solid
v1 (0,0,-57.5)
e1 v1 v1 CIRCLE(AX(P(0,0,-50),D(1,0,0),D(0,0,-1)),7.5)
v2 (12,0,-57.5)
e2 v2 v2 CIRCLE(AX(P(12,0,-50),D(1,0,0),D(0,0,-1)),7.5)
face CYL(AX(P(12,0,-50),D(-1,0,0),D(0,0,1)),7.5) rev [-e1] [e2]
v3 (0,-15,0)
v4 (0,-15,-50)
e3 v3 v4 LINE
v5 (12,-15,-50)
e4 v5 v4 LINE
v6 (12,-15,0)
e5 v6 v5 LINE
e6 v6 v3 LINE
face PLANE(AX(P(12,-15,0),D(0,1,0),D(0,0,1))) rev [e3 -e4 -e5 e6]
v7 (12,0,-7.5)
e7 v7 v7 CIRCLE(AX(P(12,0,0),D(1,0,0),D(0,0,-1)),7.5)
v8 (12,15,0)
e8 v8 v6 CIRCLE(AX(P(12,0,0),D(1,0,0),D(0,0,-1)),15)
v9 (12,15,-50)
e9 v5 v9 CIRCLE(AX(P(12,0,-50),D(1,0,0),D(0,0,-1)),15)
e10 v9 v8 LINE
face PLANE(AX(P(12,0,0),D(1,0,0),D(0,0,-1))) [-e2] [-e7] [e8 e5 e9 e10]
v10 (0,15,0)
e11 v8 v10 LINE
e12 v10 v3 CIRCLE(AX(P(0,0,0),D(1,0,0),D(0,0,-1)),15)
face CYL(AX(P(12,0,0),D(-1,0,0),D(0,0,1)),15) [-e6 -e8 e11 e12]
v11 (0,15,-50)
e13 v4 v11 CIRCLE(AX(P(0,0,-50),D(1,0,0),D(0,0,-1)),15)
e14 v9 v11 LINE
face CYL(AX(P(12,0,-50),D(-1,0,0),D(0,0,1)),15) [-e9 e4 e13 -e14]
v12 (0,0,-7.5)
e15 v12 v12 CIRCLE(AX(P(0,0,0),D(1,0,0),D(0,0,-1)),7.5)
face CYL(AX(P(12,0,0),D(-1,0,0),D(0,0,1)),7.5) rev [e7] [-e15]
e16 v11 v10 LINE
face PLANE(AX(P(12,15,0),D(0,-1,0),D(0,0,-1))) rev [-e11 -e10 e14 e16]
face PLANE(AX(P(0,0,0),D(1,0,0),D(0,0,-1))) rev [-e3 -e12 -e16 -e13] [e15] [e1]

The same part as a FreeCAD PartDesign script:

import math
import FreeCAD as App
import Part
import Sketcher
Q = App.Units.Quantity

doc = App.newDocument("Part")
body = doc.addObject("PartDesign::Body", "Body")

sketch1 = body.newObject("Sketcher::SketchObject", "Sketch")
sketch1.AttachmentSupport = (doc.getObject("YZ_Plane"), [""])
sketch1.MapMode = "FlatFace"
sketch1.addGeometry([
    Part.LineSegment(App.Vector(15, -50, 0), App.Vector(15, 0, 0)),
    Part.ArcOfCircle(Part.Circle(App.Vector(0, 0, 0), App.Vector(0, 0, 1), 15), math.radians(0), math.radians(180)),
    Part.LineSegment(App.Vector(-15, 0, 0), App.Vector(-15, -50, 0)),
    Part.ArcOfCircle(Part.Circle(App.Vector(0, -50, 0), App.Vector(0, 0, 1), 15), math.radians(180), math.radians(360)),
    Part.Circle(App.Vector(0, -50, 0), App.Vector(0, 0, 1), 8),
    Part.Circle(App.Vector(0, 0, 0), App.Vector(0, 0, 1), 8),
], False)
sketch1.addConstraint([
    Sketcher.Constraint("Tangent", 0, 2, 1, 1),
    Sketcher.Constraint("Tangent", 1, 2, 2, 1),
    Sketcher.Constraint("Tangent", 2, 2, 3, 1),
    Sketcher.Constraint("Tangent", 3, 2, 0, 1),
    Sketcher.Constraint("Vertical", 0),
    Sketcher.Constraint("Vertical", 2),
    Sketcher.Constraint("Coincident", 1, 3, -1, 1),
    Sketcher.Constraint("Coincident", 5, 3, -1, 1),
    Sketcher.Constraint("Coincident", 4, 3, 3, 3),
    Sketcher.Constraint("Equal", 4, 5),
    Sketcher.Constraint("Diameter", 4, Q("15 mm")),
    Sketcher.Constraint("Radius", 1, Q("15 mm")),
    Sketcher.Constraint("DistanceY", 0, 1, 0, 2, Q("50 mm")),
])
pad1 = body.newObject("PartDesign::Pad", "Pad")
pad1.Profile = sketch1
pad1.Length = 12

doc.recompute()
